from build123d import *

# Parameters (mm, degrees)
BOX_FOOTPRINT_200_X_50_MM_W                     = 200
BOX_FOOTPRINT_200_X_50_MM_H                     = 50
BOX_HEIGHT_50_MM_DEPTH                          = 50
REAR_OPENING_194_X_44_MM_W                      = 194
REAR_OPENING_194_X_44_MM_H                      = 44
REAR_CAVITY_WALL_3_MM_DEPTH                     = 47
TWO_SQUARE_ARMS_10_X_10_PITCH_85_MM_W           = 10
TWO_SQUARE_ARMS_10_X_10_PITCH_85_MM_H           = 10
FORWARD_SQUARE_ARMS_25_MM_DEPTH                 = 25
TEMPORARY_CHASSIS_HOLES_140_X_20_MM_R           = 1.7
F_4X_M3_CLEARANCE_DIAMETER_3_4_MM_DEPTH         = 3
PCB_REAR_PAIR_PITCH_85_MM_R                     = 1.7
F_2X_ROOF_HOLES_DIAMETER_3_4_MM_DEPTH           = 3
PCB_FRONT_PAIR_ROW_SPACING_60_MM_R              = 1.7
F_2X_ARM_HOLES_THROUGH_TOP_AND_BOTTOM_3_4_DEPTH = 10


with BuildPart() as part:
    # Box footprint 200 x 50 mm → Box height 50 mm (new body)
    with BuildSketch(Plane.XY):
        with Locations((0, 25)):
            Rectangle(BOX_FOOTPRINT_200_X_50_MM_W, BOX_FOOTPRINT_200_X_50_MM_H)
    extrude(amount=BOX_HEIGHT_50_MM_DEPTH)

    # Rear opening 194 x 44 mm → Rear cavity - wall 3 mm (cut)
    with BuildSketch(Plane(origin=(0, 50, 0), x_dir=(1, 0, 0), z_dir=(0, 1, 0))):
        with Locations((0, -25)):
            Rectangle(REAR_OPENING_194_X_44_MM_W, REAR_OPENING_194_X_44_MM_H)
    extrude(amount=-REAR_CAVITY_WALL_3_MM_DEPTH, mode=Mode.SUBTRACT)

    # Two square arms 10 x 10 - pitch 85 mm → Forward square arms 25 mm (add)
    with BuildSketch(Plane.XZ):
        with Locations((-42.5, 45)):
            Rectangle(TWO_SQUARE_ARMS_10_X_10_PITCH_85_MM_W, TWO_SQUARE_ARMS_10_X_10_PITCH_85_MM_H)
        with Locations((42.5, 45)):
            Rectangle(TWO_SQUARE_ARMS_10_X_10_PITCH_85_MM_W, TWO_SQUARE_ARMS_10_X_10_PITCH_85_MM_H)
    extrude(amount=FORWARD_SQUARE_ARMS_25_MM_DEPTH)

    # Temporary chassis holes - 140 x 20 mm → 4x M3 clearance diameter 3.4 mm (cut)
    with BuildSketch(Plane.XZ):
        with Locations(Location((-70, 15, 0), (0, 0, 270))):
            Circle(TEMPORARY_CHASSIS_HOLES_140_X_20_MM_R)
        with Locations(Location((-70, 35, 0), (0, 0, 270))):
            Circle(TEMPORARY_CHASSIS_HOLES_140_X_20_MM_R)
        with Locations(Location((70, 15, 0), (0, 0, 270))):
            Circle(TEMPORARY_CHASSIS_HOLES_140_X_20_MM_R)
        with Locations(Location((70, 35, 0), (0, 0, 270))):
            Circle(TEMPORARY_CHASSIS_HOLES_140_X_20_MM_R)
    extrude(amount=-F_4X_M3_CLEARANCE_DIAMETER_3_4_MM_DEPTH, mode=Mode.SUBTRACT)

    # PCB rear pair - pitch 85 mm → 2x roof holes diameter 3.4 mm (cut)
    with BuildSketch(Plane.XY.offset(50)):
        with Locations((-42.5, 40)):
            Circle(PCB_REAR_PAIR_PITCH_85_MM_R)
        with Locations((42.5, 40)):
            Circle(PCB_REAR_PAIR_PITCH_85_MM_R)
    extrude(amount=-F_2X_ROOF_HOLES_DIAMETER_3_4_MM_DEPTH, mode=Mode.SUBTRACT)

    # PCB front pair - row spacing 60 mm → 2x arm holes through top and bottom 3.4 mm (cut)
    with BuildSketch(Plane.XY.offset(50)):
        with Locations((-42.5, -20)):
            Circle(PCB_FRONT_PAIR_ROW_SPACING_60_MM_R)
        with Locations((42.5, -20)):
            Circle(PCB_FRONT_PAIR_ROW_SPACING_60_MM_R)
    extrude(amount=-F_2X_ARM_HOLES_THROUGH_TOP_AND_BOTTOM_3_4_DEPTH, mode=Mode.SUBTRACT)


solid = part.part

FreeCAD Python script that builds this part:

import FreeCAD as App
import Part
import Sketcher

V = App.Vector
Q = App.Units.Quantity


def add_polygon(sketch, points):
    """Adds a closed chain of lines whose ends are joined by coincident constraints."""
    first, n = sketch.GeometryCount, len(points)
    for a, b in zip(points, points[1:] + points[:1]):
        sketch.addGeometry(Part.LineSegment(App.Vector(*a, 0), App.Vector(*b, 0)), False)
    for i in range(n):
        sketch.addConstraint(Sketcher.Constraint("Coincident", first + i, 2, first + (i + 1) % n, 1))

doc = App.newDocument("Part")
params = doc.addObject("Spreadsheet::Sheet", "Params")
for row, (alias, value) in enumerate([
    ("sketch1_width", "200 mm"),
    ("sketch1_height", "50 mm"),
    ("pad1_length", "50 mm"),
    ("sketch2_width", "194 mm"),
    ("sketch2_height", "44 mm"),
    ("pocket1_length", "47 mm"),
    ("sketch3_width", "10 mm"),
    ("pad2_length", "25 mm"),
    ("sketch4_diameter", "3.4 mm"),
    ("pocket2_length", "3 mm"),
    ("sketch5_diameter", "3.4 mm"),
    ("pocket3_length", "3 mm"),
    ("sketch6_diameter", "3.4 mm"),
    ("pocket4_length", "10 mm"),
], start=1):
    params.set(f"A{row}", alias)
    params.set(f"B{row}", "=" + value)
    params.setAlias(f"B{row}", alias)

body = doc.addObject("PartDesign::Body", "Body")

# Sketch on XY plane
sketch1 = body.newObject("Sketcher::SketchObject", "Sketch")
sketch1.AttachmentSupport = (doc.getObject("XY_Plane"), [""])
sketch1.MapMode = "FlatFace"
add_polygon(sketch1, [(-100, 50), (-100, 0), (100, 0), (100, 50)])  # lines 0-3
sketch1.addConstraint([
    Sketcher.Constraint("Vertical", 0),
    Sketcher.Constraint("Horizontal", 1),
    Sketcher.Constraint("Vertical", 2),
    Sketcher.Constraint("Horizontal", 3),
    Sketcher.Constraint("Symmetric", 0, 2, 1, 2, -1, 1),
    Sketcher.Constraint("DistanceX", 1, 1, 1, 2, Q("200 mm")),
    Sketcher.Constraint("DistanceY", 0, 2, 0, 1, Q("50 mm")),
])
sketch1.setExpression("Constraints[9]", "Params.sketch1_width")
sketch1.setExpression("Constraints[10]", "Params.sketch1_height")
pad1 = body.newObject("PartDesign::Pad", "Pad")
pad1.Profile = sketch1
pad1.setExpression("Length", "Params.pad1_length")

# Sketch on XZ plane
sketch2 = body.newObject("Sketcher::SketchObject", "Sketch001")
sketch2.AttachmentSupport = (doc.getObject("XZ_Plane"), [""])
sketch2.MapMode = "FlatFace"
sketch2.AttachmentOffset = App.Placement(V(0, 0, -50), App.Rotation())
add_polygon(sketch2, [(-97, 3), (-97, 47), (97, 47), (97, 3)])  # lines 0-3
sketch2.addConstraint([
    Sketcher.Constraint("Vertical", 0),
    Sketcher.Constraint("Horizontal", 1),
    Sketcher.Constraint("Vertical", 2),
    Sketcher.Constraint("Horizontal", 3),
    Sketcher.Constraint("DistanceX", 1, 1, 1, 2, Q("194 mm")),
    Sketcher.Constraint("DistanceY", 0, 1, 0, 2, Q("44 mm")),
    Sketcher.Constraint("DistanceX", 0, 2, -1, 1, Q("97 mm")),
    Sketcher.Constraint("DistanceY", -1, 1, 0, 2, Q("47 mm")),
])
sketch2.setExpression("Constraints[8]", "Params.sketch2_width")
sketch2.setExpression("Constraints[9]", "Params.sketch2_height")
pocket1 = body.newObject("PartDesign::Pocket", "Pocket")
pocket1.Profile = sketch2
pocket1.setExpression("Length", "Params.pocket1_length")
pocket1.Reversed = True

# Sketch on XZ plane
sketch3 = body.newObject("Sketcher::SketchObject", "Sketch002")
sketch3.AttachmentSupport = (doc.getObject("XZ_Plane"), [""])
sketch3.MapMode = "FlatFace"
add_polygon(sketch3, [(-48, 50), (-48, 40), (-38, 40), (-38, 50)])  # lines 0-3
add_polygon(sketch3, [(38, 50), (38, 40), (48, 40), (48, 50)])  # lines 4-7
sketch3.addConstraint([
    Sketcher.Constraint("Vertical", 0),
    Sketcher.Constraint("Horizontal", 1),
    Sketcher.Constraint("Vertical", 2),
    Sketcher.Constraint("Horizontal", 3),
    Sketcher.Constraint("Vertical", 4),
    Sketcher.Constraint("Horizontal", 5),
    Sketcher.Constraint("Vertical", 6),
    Sketcher.Constraint("Horizontal", 7),
    Sketcher.Constraint("Symmetric", 1, 2, 4, 2, -2),
    Sketcher.Constraint("Symmetric", 3, 2, 6, 2, -2),
    Sketcher.Constraint("Equal", 7, 0),
    Sketcher.Constraint("DistanceX", 1, 1, 1, 2, Q("10 mm")),
    Sketcher.Constraint("DistanceY", -1, 1, 0, 2, Q("40 mm")),
    Sketcher.Constraint("DistanceX", 1, 2, 4, 2, Q("75 mm")),
])
sketch3.setExpression("Constraints[19]", "Params.sketch3_width")
pad2 = body.newObject("PartDesign::Pad", "Pad001")
pad2.Profile = sketch3
pad2.setExpression("Length", "Params.pad2_length")

# Sketch on XZ plane
sketch4 = body.newObject("Sketcher::SketchObject", "Sketch003")
sketch4.AttachmentSupport = (doc.getObject("XZ_Plane"), [""])
sketch4.MapMode = "FlatFace"
sketch4.addGeometry([
    Part.Circle(V(-70, 15, 0), V(0, 0, 1), 1.7),
    Part.Circle(V(-70, 35, 0), V(0, 0, 1), 1.7),
    Part.Circle(V(70, 15, 0), V(0, 0, 1), 1.7),
    Part.Circle(V(70, 35, 0), V(0, 0, 1), 1.7),
], False)
sketch4.addConstraint([
    Sketcher.Constraint("Equal", 0, 1),
    Sketcher.Constraint("Equal", 1, 2),
    Sketcher.Constraint("Equal", 2, 3),
    Sketcher.Constraint("Symmetric", 0, 3, 2, 3, -2),
    Sketcher.Constraint("Symmetric", 1, 3, 3, 3, -2),
    Sketcher.Constraint("Vertical", 0, 3, 1, 3),
    Sketcher.Constraint("Diameter", 0, Q("3.4 mm")),
    Sketcher.Constraint("DistanceX", 0, 3, -1, 1, Q("70 mm")),
    Sketcher.Constraint("DistanceY", -1, 1, 0, 3, Q("15 mm")),
    Sketcher.Constraint("DistanceY", -1, 1, 1, 3, Q("35 mm")),
])
sketch4.setExpression("Constraints[6]", "Params.sketch4_diameter")
pocket2 = body.newObject("PartDesign::Pocket", "Pocket001")
pocket2.Profile = sketch4
pocket2.setExpression("Length", "Params.pocket2_length")

# Sketch on XY plane
sketch5 = body.newObject("Sketcher::SketchObject", "Sketch004")
sketch5.AttachmentSupport = (doc.getObject("XY_Plane"), [""])
sketch5.MapMode = "FlatFace"
sketch5.AttachmentOffset = App.Placement(V(0, 0, 50), App.Rotation())
sketch5.addGeometry([
    Part.Circle(V(-42.5, 40, 0), V(0, 0, 1), 1.7),
    Part.Circle(V(42.5, 40, 0), V(0, 0, 1), 1.7),
], False)
sketch5.addConstraint([
    Sketcher.Constraint("Equal", 0, 1),
    Sketcher.Constraint("Symmetric", 0, 3, 1, 3, -2),
    Sketcher.Constraint("Diameter", 0, Q("3.4 mm")),
    Sketcher.Constraint("DistanceY", -1, 1, 0, 3, Q("40 mm")),
    Sketcher.Constraint("DistanceX", 0, 3, 1, 3, Q("85 mm")),
])
sketch5.setExpression("Constraints[2]", "Params.sketch5_diameter")
pocket3 = body.newObject("PartDesign::Pocket", "Pocket002")
pocket3.Profile = sketch5
pocket3.setExpression("Length", "Params.pocket3_length")

# Sketch on XY plane
sketch6 = body.newObject("Sketcher::SketchObject", "Sketch005")
sketch6.AttachmentSupport = (doc.getObject("XY_Plane"), [""])
sketch6.MapMode = "FlatFace"
sketch6.AttachmentOffset = App.Placement(V(0, 0, 50), App.Rotation())
sketch6.addGeometry([
    Part.Circle(V(-42.5, -20, 0), V(0, 0, 1), 1.7),
    Part.Circle(V(42.5, -20, 0), V(0, 0, 1), 1.7),
], False)
sketch6.addConstraint([
    Sketcher.Constraint("Equal", 0, 1),
    Sketcher.Constraint("Symmetric", 0, 3, 1, 3, -2),
    Sketcher.Constraint("Diameter", 0, Q("3.4 mm")),
    Sketcher.Constraint("DistanceY", 0, 3, -1, 1, Q("20 mm")),
    Sketcher.Constraint("DistanceX", 0, 3, 1, 3, Q("85 mm")),
])
sketch6.setExpression("Constraints[2]", "Params.sketch6_diameter")
pocket4 = body.newObject("PartDesign::Pocket", "Pocket003")
pocket4.Profile = sketch6
pocket4.setExpression("Length", "Params.pocket4_length")

doc.recompute()
